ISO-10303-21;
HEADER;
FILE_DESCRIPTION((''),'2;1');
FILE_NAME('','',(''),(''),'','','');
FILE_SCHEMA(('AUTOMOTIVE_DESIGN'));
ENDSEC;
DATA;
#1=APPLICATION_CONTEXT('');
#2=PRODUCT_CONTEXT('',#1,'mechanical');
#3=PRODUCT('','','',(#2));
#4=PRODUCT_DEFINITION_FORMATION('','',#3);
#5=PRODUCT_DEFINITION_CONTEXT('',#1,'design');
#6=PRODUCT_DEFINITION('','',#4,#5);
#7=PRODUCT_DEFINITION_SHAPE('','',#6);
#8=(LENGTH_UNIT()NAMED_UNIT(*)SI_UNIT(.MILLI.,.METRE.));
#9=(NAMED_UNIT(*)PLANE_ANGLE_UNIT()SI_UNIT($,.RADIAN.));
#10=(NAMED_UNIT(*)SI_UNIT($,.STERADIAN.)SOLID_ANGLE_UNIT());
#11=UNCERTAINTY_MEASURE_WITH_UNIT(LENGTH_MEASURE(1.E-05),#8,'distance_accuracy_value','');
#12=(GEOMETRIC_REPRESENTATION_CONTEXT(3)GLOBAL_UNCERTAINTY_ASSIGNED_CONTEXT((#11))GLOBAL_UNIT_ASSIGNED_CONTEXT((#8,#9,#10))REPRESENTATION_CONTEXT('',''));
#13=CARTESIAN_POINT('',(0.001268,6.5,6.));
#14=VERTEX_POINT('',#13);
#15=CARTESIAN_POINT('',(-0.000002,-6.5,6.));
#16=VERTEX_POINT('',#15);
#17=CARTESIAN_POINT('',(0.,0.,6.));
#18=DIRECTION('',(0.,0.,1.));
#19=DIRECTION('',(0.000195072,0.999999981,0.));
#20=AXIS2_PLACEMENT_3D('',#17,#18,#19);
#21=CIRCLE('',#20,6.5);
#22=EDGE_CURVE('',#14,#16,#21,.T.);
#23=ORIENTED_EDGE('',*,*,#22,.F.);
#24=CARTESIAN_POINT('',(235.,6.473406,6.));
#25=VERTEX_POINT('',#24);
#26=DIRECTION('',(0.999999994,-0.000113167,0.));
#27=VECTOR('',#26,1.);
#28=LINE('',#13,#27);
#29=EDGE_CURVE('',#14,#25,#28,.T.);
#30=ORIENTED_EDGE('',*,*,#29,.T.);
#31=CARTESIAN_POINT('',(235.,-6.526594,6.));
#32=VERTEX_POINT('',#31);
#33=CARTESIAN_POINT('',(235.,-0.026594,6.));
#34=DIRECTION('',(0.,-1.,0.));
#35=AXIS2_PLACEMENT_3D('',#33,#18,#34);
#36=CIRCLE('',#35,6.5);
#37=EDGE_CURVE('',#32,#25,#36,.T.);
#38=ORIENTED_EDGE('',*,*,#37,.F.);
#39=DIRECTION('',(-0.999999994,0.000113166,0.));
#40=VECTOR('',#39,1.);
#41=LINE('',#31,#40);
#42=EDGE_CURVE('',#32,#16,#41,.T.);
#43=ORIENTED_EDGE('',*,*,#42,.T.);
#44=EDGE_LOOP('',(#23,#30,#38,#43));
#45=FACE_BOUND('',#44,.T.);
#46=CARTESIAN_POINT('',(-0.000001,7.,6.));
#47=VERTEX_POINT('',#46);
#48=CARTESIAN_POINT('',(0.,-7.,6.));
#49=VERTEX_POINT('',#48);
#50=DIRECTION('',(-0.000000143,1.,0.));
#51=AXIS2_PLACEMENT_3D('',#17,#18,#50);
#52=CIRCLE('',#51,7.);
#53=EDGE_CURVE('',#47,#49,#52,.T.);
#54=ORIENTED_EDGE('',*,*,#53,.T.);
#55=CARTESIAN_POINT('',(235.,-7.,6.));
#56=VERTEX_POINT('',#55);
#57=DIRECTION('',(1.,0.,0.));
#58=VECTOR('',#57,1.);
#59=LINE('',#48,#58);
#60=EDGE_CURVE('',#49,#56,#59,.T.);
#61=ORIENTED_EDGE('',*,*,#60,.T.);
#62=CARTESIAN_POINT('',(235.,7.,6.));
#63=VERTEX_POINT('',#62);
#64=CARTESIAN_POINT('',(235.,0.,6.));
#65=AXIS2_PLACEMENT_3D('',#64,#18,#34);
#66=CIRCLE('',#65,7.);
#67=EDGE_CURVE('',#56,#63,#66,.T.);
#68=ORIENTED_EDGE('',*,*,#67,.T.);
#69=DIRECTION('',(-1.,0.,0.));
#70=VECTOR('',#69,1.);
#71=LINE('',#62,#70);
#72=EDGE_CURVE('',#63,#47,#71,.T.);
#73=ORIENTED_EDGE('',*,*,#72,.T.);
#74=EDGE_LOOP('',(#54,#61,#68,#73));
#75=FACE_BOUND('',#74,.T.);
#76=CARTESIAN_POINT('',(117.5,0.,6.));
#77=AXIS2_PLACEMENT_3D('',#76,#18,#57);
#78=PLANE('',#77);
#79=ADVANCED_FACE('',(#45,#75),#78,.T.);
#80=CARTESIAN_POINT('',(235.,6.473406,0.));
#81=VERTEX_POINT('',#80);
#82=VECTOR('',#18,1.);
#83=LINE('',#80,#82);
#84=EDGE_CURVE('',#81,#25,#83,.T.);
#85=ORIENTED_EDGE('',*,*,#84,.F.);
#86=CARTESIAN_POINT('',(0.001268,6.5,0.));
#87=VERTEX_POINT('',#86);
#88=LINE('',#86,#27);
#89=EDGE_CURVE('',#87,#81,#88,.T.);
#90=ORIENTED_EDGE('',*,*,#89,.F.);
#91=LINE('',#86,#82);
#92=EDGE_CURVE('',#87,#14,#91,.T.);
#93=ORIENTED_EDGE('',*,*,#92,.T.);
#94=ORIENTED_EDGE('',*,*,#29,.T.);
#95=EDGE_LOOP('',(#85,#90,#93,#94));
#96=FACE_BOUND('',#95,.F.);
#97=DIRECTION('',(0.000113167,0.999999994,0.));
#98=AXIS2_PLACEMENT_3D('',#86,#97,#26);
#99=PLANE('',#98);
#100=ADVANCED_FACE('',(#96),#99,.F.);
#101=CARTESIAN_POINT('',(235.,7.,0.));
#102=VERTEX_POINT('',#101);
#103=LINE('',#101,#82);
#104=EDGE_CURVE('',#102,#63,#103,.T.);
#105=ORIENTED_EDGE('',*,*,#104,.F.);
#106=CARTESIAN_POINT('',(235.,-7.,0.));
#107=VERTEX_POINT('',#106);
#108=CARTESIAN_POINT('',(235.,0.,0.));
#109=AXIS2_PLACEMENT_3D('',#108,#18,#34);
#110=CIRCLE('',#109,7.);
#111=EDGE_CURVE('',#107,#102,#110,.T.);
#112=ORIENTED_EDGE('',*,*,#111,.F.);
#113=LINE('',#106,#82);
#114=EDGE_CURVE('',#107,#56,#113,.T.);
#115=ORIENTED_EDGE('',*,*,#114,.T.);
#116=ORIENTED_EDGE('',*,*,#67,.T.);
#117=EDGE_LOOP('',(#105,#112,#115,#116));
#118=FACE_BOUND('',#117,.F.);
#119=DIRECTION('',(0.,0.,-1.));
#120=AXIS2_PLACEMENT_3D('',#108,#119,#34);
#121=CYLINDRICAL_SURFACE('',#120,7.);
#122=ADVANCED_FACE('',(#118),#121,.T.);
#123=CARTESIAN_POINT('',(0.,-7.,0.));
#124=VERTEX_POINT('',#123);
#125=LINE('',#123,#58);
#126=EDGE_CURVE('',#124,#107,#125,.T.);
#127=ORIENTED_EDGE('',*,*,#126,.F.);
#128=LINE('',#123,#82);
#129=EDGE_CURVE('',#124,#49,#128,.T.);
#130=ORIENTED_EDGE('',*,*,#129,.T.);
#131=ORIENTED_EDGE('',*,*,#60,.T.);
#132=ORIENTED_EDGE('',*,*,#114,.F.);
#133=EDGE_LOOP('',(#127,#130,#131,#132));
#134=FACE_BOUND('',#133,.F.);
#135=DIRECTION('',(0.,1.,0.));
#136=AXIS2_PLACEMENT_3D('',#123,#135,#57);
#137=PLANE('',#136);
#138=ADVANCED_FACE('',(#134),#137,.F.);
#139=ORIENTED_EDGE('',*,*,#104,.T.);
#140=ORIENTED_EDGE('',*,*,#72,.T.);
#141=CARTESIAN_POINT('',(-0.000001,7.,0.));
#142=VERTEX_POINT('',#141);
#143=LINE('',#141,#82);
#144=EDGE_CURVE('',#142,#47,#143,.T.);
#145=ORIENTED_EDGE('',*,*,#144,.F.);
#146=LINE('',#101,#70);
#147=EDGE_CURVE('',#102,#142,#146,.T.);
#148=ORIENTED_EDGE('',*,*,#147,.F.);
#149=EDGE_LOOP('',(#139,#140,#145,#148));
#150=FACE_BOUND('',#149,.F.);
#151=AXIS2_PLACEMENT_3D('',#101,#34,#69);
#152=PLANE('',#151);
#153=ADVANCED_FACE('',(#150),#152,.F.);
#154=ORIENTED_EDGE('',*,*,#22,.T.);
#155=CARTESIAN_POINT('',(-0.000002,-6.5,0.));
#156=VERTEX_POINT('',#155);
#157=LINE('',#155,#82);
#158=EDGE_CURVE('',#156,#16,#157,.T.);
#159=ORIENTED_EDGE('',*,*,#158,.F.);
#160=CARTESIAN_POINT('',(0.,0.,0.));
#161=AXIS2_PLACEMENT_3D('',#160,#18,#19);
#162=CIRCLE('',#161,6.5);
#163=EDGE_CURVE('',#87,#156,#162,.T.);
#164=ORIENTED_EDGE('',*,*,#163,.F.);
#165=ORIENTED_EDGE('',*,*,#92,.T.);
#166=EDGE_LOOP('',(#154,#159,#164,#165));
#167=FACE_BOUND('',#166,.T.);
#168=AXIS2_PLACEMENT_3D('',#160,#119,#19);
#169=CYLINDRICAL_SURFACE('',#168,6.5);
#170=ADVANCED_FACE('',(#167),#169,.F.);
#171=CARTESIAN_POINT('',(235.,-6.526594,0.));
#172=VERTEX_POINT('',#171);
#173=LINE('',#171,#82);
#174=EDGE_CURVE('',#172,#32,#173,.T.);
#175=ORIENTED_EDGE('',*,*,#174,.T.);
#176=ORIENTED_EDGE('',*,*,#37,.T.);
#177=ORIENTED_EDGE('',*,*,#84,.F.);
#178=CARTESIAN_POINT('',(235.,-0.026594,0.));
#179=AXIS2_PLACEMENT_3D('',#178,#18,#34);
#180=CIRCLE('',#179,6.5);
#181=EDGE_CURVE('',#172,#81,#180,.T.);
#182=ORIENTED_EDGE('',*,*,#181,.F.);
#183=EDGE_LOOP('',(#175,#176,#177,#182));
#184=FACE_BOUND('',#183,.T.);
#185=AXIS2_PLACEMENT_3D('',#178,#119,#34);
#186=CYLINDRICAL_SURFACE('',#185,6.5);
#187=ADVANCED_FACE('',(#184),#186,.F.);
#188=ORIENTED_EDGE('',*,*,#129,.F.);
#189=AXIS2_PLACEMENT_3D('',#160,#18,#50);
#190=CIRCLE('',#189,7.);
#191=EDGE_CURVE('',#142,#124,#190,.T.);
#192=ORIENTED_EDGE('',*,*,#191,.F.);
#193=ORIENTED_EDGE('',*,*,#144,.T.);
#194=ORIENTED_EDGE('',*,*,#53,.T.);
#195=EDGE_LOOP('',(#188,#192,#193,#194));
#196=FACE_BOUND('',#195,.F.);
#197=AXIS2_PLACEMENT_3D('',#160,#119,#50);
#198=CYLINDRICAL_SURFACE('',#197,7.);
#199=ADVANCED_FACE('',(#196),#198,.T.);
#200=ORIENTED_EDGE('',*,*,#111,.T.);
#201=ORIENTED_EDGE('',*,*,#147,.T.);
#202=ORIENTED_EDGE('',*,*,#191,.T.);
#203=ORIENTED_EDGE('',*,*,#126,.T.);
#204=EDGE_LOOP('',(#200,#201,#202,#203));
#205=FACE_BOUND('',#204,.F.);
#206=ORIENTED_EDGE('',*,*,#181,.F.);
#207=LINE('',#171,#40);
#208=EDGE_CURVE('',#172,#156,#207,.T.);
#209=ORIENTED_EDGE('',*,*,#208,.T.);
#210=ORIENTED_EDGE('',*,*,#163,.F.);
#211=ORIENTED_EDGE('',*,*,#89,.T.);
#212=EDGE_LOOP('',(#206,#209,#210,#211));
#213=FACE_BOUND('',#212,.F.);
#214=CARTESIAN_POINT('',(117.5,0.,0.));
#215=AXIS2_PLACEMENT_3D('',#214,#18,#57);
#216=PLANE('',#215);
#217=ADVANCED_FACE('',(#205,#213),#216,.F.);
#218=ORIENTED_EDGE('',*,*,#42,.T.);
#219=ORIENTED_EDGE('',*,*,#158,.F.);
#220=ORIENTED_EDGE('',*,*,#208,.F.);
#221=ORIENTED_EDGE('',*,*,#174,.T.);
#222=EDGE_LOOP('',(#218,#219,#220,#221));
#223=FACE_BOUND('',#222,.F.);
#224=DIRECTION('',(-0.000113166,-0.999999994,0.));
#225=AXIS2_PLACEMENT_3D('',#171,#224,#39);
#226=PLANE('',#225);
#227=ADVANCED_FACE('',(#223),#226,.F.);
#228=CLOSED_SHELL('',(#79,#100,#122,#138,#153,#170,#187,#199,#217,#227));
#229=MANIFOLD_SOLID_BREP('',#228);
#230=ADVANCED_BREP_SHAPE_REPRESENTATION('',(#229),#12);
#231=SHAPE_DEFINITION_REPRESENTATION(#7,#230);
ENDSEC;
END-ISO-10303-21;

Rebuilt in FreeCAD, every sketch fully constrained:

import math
import FreeCAD as App
import Part
import Sketcher
Q = App.Units.Quantity

doc = App.newDocument("Part")
body = doc.addObject("PartDesign::Body", "Body")

# Sketch on XY plane
sketch1 = body.newObject("Sketcher::SketchObject", "Sketch")
sketch1.AttachmentSupport = (doc.getObject("XY_Plane"), [""])
sketch1.MapMode = "FlatFace"
sketch1.addGeometry(Part.ArcOfCircle(Part.Circle(App.Vector(0, 0, 0), App.Vector(0, 0, 1), 7), math.radians(90), math.radians(270)), False)
sketch1.addGeometry(Part.LineSegment(App.Vector(0, -7, 0), App.Vector(235, -7, 0)), False)
sketch1.addGeometry(Part.ArcOfCircle(Part.Circle(App.Vector(235, 0, 0), App.Vector(0, 0, 1), 7), math.radians(-90), math.radians(90)), False)
sketch1.addGeometry(Part.LineSegment(App.Vector(235, 7, 0), App.Vector(0, 7, 0)), False)
sketch1.addGeometry(Part.ArcOfCircle(Part.Circle(App.Vector(0, 0, 0), App.Vector(0, 0, 1), 7), math.radians(90), math.radians(270)), False)
sketch1.addGeometry(Part.LineSegment(App.Vector(0, 6, 0), App.Vector(235, 6, 0)), False)
sketch1.addGeometry(Part.ArcOfCircle(Part.Circle(App.Vector(235, 0, 0), App.Vector(0, 0, 1), 6), math.radians(-90), math.radians(90)), False)
sketch1.addGeometry(Part.LineSegment(App.Vector(235, -7, 0), App.Vector(0, -6, 0)), False)
sketch1.addConstraint(Sketcher.Constraint("Tangent", 0, 2, 1, 1))
sketch1.addConstraint(Sketcher.Constraint("Tangent", 1, 2, 2, 1))
sketch1.addConstraint(Sketcher.Constraint("Tangent", 2, 2, 3, 1))
sketch1.addConstraint(Sketcher.Constraint("Tangent", 3, 2, 0, 1))
sketch1.addConstraint(Sketcher.Constraint("Coincident", 4, 1, 5, 1))
sketch1.addConstraint(Sketcher.Constraint("Coincident", 5, 2, 6, 2))
sketch1.addConstraint(Sketcher.Constraint("Coincident", 6, 1, 7, 1))
sketch1.addConstraint(Sketcher.Constraint("Coincident", 7, 2, 4, 2))
sketch1.addConstraint(Sketcher.Constraint("Horizontal", 1))
sketch1.addConstraint(Sketcher.Constraint("Horizontal", 3))
sketch1.addConstraint(Sketcher.Constraint("Coincident", 0, 3, -1, 1))
sketch1.addConstraint(Sketcher.Constraint("Coincident", 4, 3, -1, 1))
sketch1.addConstraint(Sketcher.Constraint("Equal", 4, 6))
sketch1.addConstraint(Sketcher.Constraint("Vertical", 2, 3, 6, 3))
sketch1.addConstraint(Sketcher.Constraint("Vertical", 2, 2, 5, 2))
sketch1.addConstraint(Sketcher.Constraint("Vertical", 5, 2, 6, 1))
sketch1.addConstraint(Sketcher.Constraint("Vertical", 3, 2, 7, 2))
sketch1.addConstraint(Sketcher.Constraint("Radius", 0, Q("7 mm")))
sketch1.addConstraint(Sketcher.Constraint("Radius", 4, Q("6.5 mm")))
sketch1.addConstraint(Sketcher.Constraint("DistanceX", 1, 1, 1, 2, Q("235 mm")))
sketch1.addConstraint(Sketcher.Constraint("DistanceX", -1, 1, 4, 1, Q("0.001268 mm")))
sketch1.addConstraint(Sketcher.Constraint("DistanceY", 6, 3, -1, 1, Q("0.026594 mm")))
pad1 = body.newObject("PartDesign::Pad", "Pad")
pad1.Profile = sketch1
pad1.Length = 6

doc.recompute()
